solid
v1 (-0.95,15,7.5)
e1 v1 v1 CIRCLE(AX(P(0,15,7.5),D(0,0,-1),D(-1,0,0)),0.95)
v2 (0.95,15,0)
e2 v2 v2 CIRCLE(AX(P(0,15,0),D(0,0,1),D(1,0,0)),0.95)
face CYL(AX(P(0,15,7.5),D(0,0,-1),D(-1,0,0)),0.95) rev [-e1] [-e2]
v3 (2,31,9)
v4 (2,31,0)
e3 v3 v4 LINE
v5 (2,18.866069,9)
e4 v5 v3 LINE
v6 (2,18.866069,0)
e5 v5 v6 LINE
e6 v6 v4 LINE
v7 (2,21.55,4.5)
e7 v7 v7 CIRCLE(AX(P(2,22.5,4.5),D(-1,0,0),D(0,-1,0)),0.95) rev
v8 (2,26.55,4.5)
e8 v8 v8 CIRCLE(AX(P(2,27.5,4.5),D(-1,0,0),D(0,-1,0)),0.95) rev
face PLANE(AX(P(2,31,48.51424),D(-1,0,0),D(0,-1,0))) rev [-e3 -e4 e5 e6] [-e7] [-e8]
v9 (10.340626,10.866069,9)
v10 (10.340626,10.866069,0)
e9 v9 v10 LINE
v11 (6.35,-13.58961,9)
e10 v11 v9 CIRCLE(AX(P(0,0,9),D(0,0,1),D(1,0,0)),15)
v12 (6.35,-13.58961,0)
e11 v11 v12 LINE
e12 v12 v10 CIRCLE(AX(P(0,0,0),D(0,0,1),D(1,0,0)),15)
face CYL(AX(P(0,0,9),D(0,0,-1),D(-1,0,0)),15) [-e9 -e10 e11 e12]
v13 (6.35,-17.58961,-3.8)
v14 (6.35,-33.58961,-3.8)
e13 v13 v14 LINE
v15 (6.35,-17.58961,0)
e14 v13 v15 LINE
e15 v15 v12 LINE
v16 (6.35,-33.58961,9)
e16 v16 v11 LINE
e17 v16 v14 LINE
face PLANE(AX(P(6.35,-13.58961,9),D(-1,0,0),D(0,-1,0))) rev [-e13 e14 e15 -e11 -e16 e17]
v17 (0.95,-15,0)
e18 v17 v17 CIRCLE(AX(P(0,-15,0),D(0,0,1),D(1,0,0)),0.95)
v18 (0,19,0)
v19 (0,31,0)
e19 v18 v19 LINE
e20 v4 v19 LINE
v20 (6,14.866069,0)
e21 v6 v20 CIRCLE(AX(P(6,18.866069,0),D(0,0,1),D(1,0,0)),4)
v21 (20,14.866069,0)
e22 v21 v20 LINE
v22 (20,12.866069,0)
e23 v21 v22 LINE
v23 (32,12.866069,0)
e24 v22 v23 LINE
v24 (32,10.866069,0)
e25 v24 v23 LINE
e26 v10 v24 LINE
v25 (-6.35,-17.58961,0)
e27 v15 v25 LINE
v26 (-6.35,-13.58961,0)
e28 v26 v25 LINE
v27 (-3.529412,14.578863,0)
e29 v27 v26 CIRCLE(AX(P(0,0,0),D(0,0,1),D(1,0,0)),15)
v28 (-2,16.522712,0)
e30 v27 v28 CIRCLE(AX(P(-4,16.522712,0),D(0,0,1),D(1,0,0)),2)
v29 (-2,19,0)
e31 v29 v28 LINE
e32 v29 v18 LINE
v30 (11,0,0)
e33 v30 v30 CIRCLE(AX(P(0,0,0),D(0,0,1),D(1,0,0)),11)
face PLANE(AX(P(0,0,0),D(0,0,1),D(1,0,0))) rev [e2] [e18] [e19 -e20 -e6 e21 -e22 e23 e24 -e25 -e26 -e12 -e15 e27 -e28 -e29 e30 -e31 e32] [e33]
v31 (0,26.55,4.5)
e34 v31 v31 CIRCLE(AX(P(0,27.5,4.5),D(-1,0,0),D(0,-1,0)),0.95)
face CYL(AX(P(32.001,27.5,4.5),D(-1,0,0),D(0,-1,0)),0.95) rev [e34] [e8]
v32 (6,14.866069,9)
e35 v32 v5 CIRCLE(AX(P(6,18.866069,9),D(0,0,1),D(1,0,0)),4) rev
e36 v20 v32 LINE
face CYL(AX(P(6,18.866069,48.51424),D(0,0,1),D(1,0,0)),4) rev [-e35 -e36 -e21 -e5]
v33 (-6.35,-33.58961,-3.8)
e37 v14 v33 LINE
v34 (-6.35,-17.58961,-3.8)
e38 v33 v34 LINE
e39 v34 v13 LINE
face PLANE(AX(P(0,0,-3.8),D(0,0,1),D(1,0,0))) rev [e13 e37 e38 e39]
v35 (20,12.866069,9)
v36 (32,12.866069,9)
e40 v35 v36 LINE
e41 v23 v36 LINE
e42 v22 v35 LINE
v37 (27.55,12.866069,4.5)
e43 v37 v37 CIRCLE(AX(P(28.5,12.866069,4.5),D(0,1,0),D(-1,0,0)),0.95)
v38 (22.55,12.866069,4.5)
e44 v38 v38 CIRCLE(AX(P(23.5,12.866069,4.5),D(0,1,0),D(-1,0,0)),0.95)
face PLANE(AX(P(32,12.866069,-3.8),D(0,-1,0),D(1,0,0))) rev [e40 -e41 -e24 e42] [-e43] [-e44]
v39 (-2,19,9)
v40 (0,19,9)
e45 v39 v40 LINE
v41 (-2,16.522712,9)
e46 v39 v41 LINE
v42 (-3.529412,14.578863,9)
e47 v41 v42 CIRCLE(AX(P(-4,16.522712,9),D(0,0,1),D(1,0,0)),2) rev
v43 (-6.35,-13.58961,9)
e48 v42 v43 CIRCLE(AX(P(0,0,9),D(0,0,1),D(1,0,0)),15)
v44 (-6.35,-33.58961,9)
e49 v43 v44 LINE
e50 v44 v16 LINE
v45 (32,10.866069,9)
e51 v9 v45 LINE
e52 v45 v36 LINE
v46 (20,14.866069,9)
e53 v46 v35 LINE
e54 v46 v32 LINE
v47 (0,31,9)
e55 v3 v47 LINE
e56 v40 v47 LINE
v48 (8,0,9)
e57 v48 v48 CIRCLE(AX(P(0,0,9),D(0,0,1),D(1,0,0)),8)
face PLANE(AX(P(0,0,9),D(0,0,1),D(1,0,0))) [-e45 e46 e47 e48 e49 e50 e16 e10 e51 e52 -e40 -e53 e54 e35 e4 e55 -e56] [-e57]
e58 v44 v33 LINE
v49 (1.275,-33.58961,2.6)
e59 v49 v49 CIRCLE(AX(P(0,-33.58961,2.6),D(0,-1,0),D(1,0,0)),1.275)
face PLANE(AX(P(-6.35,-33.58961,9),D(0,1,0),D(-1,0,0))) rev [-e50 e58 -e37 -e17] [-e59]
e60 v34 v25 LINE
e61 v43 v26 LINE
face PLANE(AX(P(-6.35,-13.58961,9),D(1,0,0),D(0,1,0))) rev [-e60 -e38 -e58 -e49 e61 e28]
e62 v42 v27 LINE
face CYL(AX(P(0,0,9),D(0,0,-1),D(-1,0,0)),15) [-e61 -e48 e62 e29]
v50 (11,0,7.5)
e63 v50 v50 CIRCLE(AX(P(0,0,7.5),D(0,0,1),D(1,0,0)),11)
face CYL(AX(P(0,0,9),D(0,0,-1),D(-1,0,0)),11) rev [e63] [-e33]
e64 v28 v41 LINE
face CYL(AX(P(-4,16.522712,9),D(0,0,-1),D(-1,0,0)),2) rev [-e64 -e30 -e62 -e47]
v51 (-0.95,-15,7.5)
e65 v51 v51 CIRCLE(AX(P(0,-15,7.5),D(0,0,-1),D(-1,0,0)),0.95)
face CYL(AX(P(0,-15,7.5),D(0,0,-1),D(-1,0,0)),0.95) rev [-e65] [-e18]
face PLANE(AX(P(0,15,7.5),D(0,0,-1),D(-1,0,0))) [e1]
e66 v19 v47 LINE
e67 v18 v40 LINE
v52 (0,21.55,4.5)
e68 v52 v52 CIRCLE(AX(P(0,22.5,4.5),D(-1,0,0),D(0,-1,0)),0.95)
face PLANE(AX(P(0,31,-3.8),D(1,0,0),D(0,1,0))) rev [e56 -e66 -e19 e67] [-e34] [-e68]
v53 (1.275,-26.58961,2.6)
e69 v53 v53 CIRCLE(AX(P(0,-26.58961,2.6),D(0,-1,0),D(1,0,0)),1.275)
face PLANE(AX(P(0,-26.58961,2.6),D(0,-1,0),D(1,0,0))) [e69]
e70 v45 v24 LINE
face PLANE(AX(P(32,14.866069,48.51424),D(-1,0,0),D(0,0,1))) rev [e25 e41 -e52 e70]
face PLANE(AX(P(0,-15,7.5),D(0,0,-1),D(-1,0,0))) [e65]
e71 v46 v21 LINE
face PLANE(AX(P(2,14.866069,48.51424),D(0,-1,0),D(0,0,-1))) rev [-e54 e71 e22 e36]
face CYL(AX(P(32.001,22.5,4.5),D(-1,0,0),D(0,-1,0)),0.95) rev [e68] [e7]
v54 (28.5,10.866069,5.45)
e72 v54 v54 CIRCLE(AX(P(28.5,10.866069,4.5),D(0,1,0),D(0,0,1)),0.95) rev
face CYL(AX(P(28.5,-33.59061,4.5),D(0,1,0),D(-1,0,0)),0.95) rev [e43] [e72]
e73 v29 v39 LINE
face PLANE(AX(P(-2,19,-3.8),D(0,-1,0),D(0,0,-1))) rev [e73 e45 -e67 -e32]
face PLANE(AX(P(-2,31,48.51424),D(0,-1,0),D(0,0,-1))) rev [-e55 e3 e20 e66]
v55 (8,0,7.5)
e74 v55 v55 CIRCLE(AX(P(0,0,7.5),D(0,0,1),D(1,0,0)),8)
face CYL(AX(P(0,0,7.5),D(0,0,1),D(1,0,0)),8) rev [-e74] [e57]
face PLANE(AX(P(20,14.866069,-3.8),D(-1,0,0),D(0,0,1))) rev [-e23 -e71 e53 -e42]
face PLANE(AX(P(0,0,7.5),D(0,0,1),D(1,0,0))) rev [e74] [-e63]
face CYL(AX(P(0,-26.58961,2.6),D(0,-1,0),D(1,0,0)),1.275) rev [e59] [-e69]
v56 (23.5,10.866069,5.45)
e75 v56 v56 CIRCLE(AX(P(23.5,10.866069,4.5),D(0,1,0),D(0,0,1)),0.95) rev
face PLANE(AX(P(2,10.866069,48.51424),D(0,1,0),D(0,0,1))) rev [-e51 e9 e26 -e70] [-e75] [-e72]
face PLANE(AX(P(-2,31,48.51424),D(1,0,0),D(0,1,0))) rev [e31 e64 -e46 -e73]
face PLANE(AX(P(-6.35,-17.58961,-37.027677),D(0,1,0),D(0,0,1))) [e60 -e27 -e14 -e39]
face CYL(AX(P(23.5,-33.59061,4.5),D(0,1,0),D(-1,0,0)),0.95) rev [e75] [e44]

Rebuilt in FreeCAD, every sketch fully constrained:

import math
import FreeCAD as App
import Part
import Sketcher
from FreeCAD import Vector


def edges_at(feature, points):
    """Names of the edges that pass closest to the given points."""
    edges = feature.Shape.Edges
    near = lambda p: min(range(len(edges)), key=lambda i: edges[i].distToShape(Part.Vertex(*p))[0])
    return sorted({f"Edge{near(p) + 1}" for p in points})


def add_polygon(sketch, points):
    """Adds a closed chain of lines whose ends are joined by coincident constraints."""
    first, n = sketch.GeometryCount, len(points)
    for a, b in zip(points, points[1:] + points[:1]):
        sketch.addGeometry(Part.LineSegment(App.Vector(*a, 0), App.Vector(*b, 0)), False)
    for i in range(n):
        sketch.addConstraint(Sketcher.Constraint("Coincident", first + i, 2, first + (i + 1) % n, 1))

doc = App.newDocument("Part")
body = doc.addObject("PartDesign::Body", "Body")

sketch1 = body.newObject("Sketcher::SketchObject", "Sketch")
sketch1.AttachmentSupport = (doc.getObject("XY_Plane"), [""])
sketch1.MapMode = "FlatFace"
sketch1.addGeometry([
    Part.Circle(Vector(0, 0, 0), Vector(0, 0, 1), 15),
    Part.Circle(Vector(0, 0, 0), Vector(0, 0, 1), 11),
], False)
sketch1.addConstraint([
    Sketcher.Constraint("Coincident", 0, 3, -1, 1),
    Sketcher.Constraint("Coincident", 1, 3, -1, 1),
    Sketcher.Constraint("Diameter", 0, 30.0),
    Sketcher.Constraint("Diameter", 1, 22.0),
])
pad1 = body.newObject("PartDesign::Pad", "Pad")
pad1.Profile = sketch1
pad1.Length = 9

sketch2 = body.newObject("Sketcher::SketchObject", "Sketch001")
sketch2.AttachmentSupport = (doc.getObject("XY_Plane"), [""])
sketch2.MapMode = "FlatFace"
sketch2.addGeometry([
    Part.LineSegment(Vector(-6, -14, 0), Vector(-6, -34, 0)),
    Part.LineSegment(Vector(-6, -34, 0), Vector(6, -34, 0)),
    Part.LineSegment(Vector(6, -34, 0), Vector(6, -14, 0)),
    Part.ArcOfCircle(Part.Circle(Vector(0, 0, 0), Vector(0, 0, 1), 15), math.radians(-115), math.radians(-65)),
], False)
sketch2.addConstraint([
    Sketcher.Constraint("Coincident", 0, 2, 1, 1),
    Sketcher.Constraint("Coincident", 1, 2, 2, 1),
    Sketcher.Constraint("Coincident", 2, 2, 3, 2),
    Sketcher.Constraint("Coincident", 3, 1, 0, 1),
    Sketcher.Constraint("Vertical", 0),
    Sketcher.Constraint("Horizontal", 1),
    Sketcher.Constraint("Vertical", 2),
    Sketcher.Constraint("Coincident", 3, 3, -1, 1),
    Sketcher.Constraint("Horizontal", 2, 2, 3, 1),
    Sketcher.Constraint("Radius", 3, 15.0),
    Sketcher.Constraint("DistanceY", 0, 2, 0, 1, 20.0),
    Sketcher.Constraint("DistanceX", 1, 1, 1, 2, 12.7),
])
pad2 = body.newObject("PartDesign::Pad", "Pad001")
pad2.Profile = sketch2
pad2.Length = 9

sketch3 = body.newObject("Sketcher::SketchObject", "Sketch002")
sketch3.AttachmentSupport = (doc.getObject("XY_Plane"), [""])
sketch3.MapMode = "FlatFace"
add_polygon(sketch3, [(-6, -18), (-6, -34), (6, -34), (6, -18)])
sketch3.addConstraint([
    Sketcher.Constraint("Vertical", 0),
    Sketcher.Constraint("Horizontal", 1),
    Sketcher.Constraint("Vertical", 2),
    Sketcher.Constraint("Horizontal", 3),
    Sketcher.Constraint("DistanceY", 0, 2, 0, 1, 16.0),
    Sketcher.Constraint("DistanceX", 1, 1, 1, 2, 12.7),
    Sketcher.Constraint("DistanceX", 0, 2, -1, 1, 6.35),
    Sketcher.Constraint("DistanceY", 0, 2, -1, 1, 33.58961),
])
pad3 = body.newObject("PartDesign::Pad", "Pad002")
pad3.Profile = sketch3
pad3.Length = 3.8
pad3.Reversed = True

sketch4 = body.newObject("Sketcher::SketchObject", "Sketch003")
sketch4.AttachmentSupport = (doc.getObject("XZ_Plane"), [""])
sketch4.MapMode = "FlatFace"
sketch4.AttachmentOffset = App.Placement(Vector(0, 0, 33.58961), App.Rotation())
sketch4.addGeometry(Part.Circle(Vector(0, 2.6, 0), Vector(0, 0, 1), 1.3), False)
sketch4.addConstraint([
    Sketcher.Constraint("PointOnObject", 0, 3, -2),
    Sketcher.Constraint("Diameter", 0, 2.55),
    Sketcher.Constraint("DistanceY", -1, 1, 0, 3, 2.6),
])
pocket1 = body.newObject("PartDesign::Pocket", "Pocket")
pocket1.Profile = sketch4
pocket1.Length = 7

sketch5 = body.newObject("Sketcher::SketchObject", "Sketch004")
sketch5.AttachmentSupport = (doc.getObject("XY_Plane"), [""])
sketch5.MapMode = "FlatFace"
sketch5.AttachmentOffset = App.Placement(Vector(0, 0, 9), App.Rotation())
sketch5.addGeometry([
    Part.Circle(Vector(0, 0, 0), Vector(0, 0, 1), 11),
    Part.Circle(Vector(0, 0, 0), Vector(0, 0, 1), 8),
], False)
sketch5.addConstraint([
    Sketcher.Constraint("Coincident", 0, 3, -1, 1),
    Sketcher.Constraint("Coincident", 1, 3, -1, 1),
    Sketcher.Constraint("Diameter", 0, 22.0),
    Sketcher.Constraint("Diameter", 1, 16.0),
])
pad4 = body.newObject("PartDesign::Pad", "Pad003")
pad4.Profile = sketch5
pad4.Length = 1.5
pad4.Reversed = True

sketch6 = body.newObject("Sketcher::SketchObject", "Sketch005")
sketch6.AttachmentSupport = (doc.getObject("XY_Plane"), [""])
sketch6.MapMode = "FlatFace"
add_polygon(sketch6, [(-2, 14.9), (2, 10.9), (32, 10.9), (32, 14.9), (2, 14.9), (2, 31), (-2, 31)])
sketch6.addConstraint([
    Sketcher.Constraint("Horizontal", 1),
    Sketcher.Constraint("Vertical", 2),
    Sketcher.Constraint("Horizontal", 3),
    Sketcher.Constraint("Vertical", 4),
    Sketcher.Constraint("Horizontal", 5),
    Sketcher.Constraint("Vertical", 6),
    Sketcher.Constraint("Symmetric", 3, 2, 6, 2, -2),
    Sketcher.Constraint("Vertical", 0, 2, 3, 2),
    Sketcher.Constraint("Equal", 5, 2),
    Sketcher.Constraint("DistanceX", 1, 1, 1, 2, 30.0),
    Sketcher.Constraint("DistanceX", 5, 2, 5, 1, 4.0),
    Sketcher.Constraint("DistanceY", -1, 1, 4, 2, 31.0),
    Sketcher.Constraint("DistanceY", 4, 1, 4, 2, 16.133931),
])
pad5 = body.newObject("PartDesign::Pad", "Pad004")
pad5.Profile = sketch6
pad5.Length = 9

sketch7 = body.newObject("Sketcher::SketchObject", "Sketch006")
sketch7.AttachmentSupport = (doc.getObject("XY_Plane"), [""])
sketch7.MapMode = "FlatFace"
sketch7.AttachmentOffset = App.Placement(Vector(0, 0, 9), App.Rotation())
add_polygon(sketch7, [(20, 14.9), (20, 12.9), (32, 12.9), (32, 14.9)])
add_polygon(sketch7, [(-2, 31), (-2, 19), (0, 19), (0, 31)])
sketch7.addConstraint([
    Sketcher.Constraint("Vertical", 0),
    Sketcher.Constraint("Horizontal", 1),
    Sketcher.Constraint("Vertical", 2),
    Sketcher.Constraint("Horizontal", 3),
    Sketcher.Constraint("Vertical", 4),
    Sketcher.Constraint("Horizontal", 5),
    Sketcher.Constraint("Vertical", 6),
    Sketcher.Constraint("Horizontal", 7),
    Sketcher.Constraint("PointOnObject", 5, 2, -2),
    Sketcher.Constraint("Equal", 7, 0),
    Sketcher.Constraint("Equal", 3, 4),
    Sketcher.Constraint("DistanceX", 1, 1, 1, 2, 12.0),
    Sketcher.Constraint("DistanceX", 5, 1, 5, 2, 2.0),
    Sketcher.Constraint("DistanceX", -1, 1, 0, 2, 20.0),
    Sketcher.Constraint("DistanceY", -1, 1, 4, 2, 19.0),
    Sketcher.Constraint("DistanceY", -1, 1, 0, 2, 12.866069),
])
pocket2 = body.newObject("PartDesign::Pocket", "Pocket001")
pocket2.Profile = sketch7
pocket2.Type = "ThroughAll"

sketch8 = body.newObject("Sketcher::SketchObject", "Sketch007")
sketch8.AttachmentSupport = (doc.getObject("YZ_Plane"), [""])
sketch8.MapMode = "FlatFace"
sketch8.addGeometry(Part.Circle(Vector(27.5, 4.5, 0), Vector(0, 0, 1), 0.9), False)
sketch8.addConstraint([
    Sketcher.Constraint("Diameter", 0, 1.9),
    Sketcher.Constraint("DistanceX", -1, 1, 0, 3, 27.5),
    Sketcher.Constraint("DistanceY", -1, 1, 0, 3, 4.5),
])
pocket3 = body.newObject("PartDesign::Pocket", "Pocket002")
pocket3.Profile = sketch8
pocket3.Type = "UpToFirst"
pocket3.Reversed = True

sketch9 = body.newObject("Sketcher::SketchObject", "Sketch008")
sketch9.AttachmentSupport = (doc.getObject("YZ_Plane"), [""])
sketch9.MapMode = "FlatFace"
sketch9.addGeometry(Part.Circle(Vector(22.5, 4.5, 0), Vector(0, 0, 1), 0.9), False)
sketch9.addConstraint([
    Sketcher.Constraint("Diameter", 0, 1.9),
    Sketcher.Constraint("DistanceX", -1, 1, 0, 3, 22.5),
    Sketcher.Constraint("DistanceY", -1, 1, 0, 3, 4.5),
])
pocket4 = body.newObject("PartDesign::Pocket", "Pocket003")
pocket4.Profile = sketch9
pocket4.Type = "UpToFirst"
pocket4.Reversed = True

sketch10 = body.newObject("Sketcher::SketchObject", "Sketch009")
sketch10.AttachmentSupport = (doc.getObject("XZ_Plane"), [""])
sketch10.MapMode = "FlatFace"
sketch10.AttachmentOffset = App.Placement(Vector(0, 0, -12.866069), App.Rotation())
sketch10.addGeometry(Part.Circle(Vector(23.5, 4.5, 0), Vector(0, 0, 1), 0.9), False)
sketch10.addConstraint([
    Sketcher.Constraint("Diameter", 0, 1.9),
    Sketcher.Constraint("DistanceX", -1, 1, 0, 3, 23.5),
    Sketcher.Constraint("DistanceY", -1, 1, 0, 3, 4.5),
])
pocket5 = body.newObject("PartDesign::Pocket", "Pocket004")
pocket5.Profile = sketch10
pocket5.Type = "UpToFirst"
pocket5.Reversed = True

sketch11 = body.newObject("Sketcher::SketchObject", "Sketch010")
sketch11.AttachmentSupport = (doc.getObject("XZ_Plane"), [""])
sketch11.MapMode = "FlatFace"
sketch11.AttachmentOffset = App.Placement(Vector(0, 0, -12.866069), App.Rotation())
sketch11.addGeometry(Part.Circle(Vector(28.5, 4.5, 0), Vector(0, 0, 1), 0.9), False)
sketch11.addConstraint([
    Sketcher.Constraint("Diameter", 0, 1.9),
    Sketcher.Constraint("DistanceX", -1, 1, 0, 3, 28.5),
    Sketcher.Constraint("DistanceY", -1, 1, 0, 3, 4.5),
])
pocket6 = body.newObject("PartDesign::Pocket", "Pocket005")
pocket6.Profile = sketch11
pocket6.Type = "UpToFirst"
pocket6.Reversed = True
doc.recompute()

fillet = body.newObject("PartDesign::Fillet", "Fillet")
fillet.Base = (pocket6, edges_at(pocket6, [(2, 14.866, 4.5)]))
fillet.Radius = 4
doc.recompute()

fillet2 = body.newObject("PartDesign::Fillet", "Fillet001")
fillet2.Base = (fillet, edges_at(fillet, [(-2, 14.866, 4.5)]))
fillet2.Radius = 2
body2 = doc.addObject("PartDesign::Body", "Body001")

sketch12 = body2.newObject("Sketcher::SketchObject", "Sketch011")
sketch12.AttachmentSupport = (doc.getObject("XY_Plane001"), [""])
sketch12.MapMode = "FlatFace"
sketch12.addGeometry([
    Part.LineSegment(Vector(6, 14.87, 0), Vector(10.34, 10.87, 0)),
    Part.ArcOfCircle(Part.Circle(Vector(0, 0, 0), Vector(0, 0, 1), 15), math.radians(-65), math.radians(46)),
    Part.LineSegment(Vector(6.35, -13.59, 0), Vector(6.35, -17.59, 0)),
    Part.LineSegment(Vector(6.35, -17.59, 0), Vector(-6.35, -17.59, 0)),
    Part.LineSegment(Vector(-6.35, -17.59, 0), Vector(-6.35, -13.59, 0)),
    Part.ArcOfCircle(Part.Circle(Vector(0, 0, 0), Vector(0, 0, 1), 15), math.radians(104), math.radians(245)),
    Part.ArcOfCircle(Part.Circle(Vector(-4, 16.52, 0), Vector(0, 0, 1), 2), math.radians(-76), math.radians(0)),
    Part.LineSegment(Vector(-2, 16.52, 0), Vector(-2, 19, 0)),
    Part.LineSegment(Vector(-2, 19, 0), Vector(2, 19, 0)),
    Part.LineSegment(Vector(2, 19, 0), Vector(2, 18.87, 0)),
    Part.ArcOfCircle(Part.Circle(Vector(6, 18.87, 0), Vector(0, 0, 1), 4), math.radians(-180), math.radians(-90)),
    Part.Circle(Vector(0, 0, 0), Vector(0, 0, 1), 11),
], False)
sketch12.addConstraint([
    Sketcher.Constraint("Coincident", 0, 2, 1, 2),
    Sketcher.Constraint("Coincident", 1, 1, 2, 1),
    Sketcher.Constraint("Coincident", 2, 2, 3, 1),
    Sketcher.Constraint("Coincident", 3, 2, 4, 1),
    Sketcher.Constraint("Coincident", 4, 2, 5, 2),
    Sketcher.Constraint("Tangent", 5, 1, 6, 1),
    Sketcher.Constraint("Tangent", 6, 2, 7, 1),
    Sketcher.Constraint("Coincident", 7, 2, 8, 1),
    Sketcher.Constraint("Coincident", 8, 2, 9, 1),
    Sketcher.Constraint("Tangent", 9, 2, 10, 1),
    Sketcher.Constraint("Coincident", 10, 2, 0, 1),
    Sketcher.Constraint("Vertical", 2),
    Sketcher.Constraint("Horizontal", 3),
    Sketcher.Constraint("Vertical", 4),
    Sketcher.Constraint("Vertical", 7),
    Sketcher.Constraint("Horizontal", 8),
    Sketcher.Constraint("Vertical", 9),
    Sketcher.Constraint("Coincident", 1, 3, -1, 1),
    Sketcher.Constraint("Coincident", 5, 3, -1, 1),
    Sketcher.Constraint("Coincident", 11, 3, -1, 1),
    Sketcher.Constraint("Equal", 1, 5),
    Sketcher.Constraint("Horizontal", 1, 1, 4, 2),
    Sketcher.Constraint("Equal", 8, 2),
    Sketcher.Constraint("Diameter", 11, 22.0),
    Sketcher.Constraint("Radius", 1, 15.0),
    Sketcher.Constraint("Radius", 6, 2.0),
    Sketcher.Constraint("Radius", 10, 4.0),
    Sketcher.Constraint("DistanceX", 8, 1, 8, 2, 4.0),
    Sketcher.Constraint("DistanceX", 3, 2, 3, 1, 12.7),
    Sketcher.Constraint("DistanceX", 6, 3, -1, 1, 4.0),
    Sketcher.Constraint("DistanceY", -1, 1, 7, 2, 19.0),
    Sketcher.Constraint("DistanceX", -1, 1, 10, 2, 6.0),
    Sketcher.Constraint("DistanceY", 0, 2, 10, 3, 8.0),
    Sketcher.Constraint("DistanceY", 9, 2, 9, 1, 0.133931),
])
pad6 = body2.newObject("PartDesign::Pad", "Pad005")
pad6.Profile = sketch12
pad6.Length = 1.5
pad6.Reversed = True
body3 = doc.addObject("PartDesign::Body", "Body002")
body3.AllowCompound = True

sketch13 = body3.newObject("Sketcher::SketchObject", "Sketch012")
sketch13.AttachmentSupport = (doc.getObject("XY_Plane002"), [""])
sketch13.MapMode = "FlatFace"
sketch13.AttachmentOffset = App.Placement(Vector(0, 0, -1.5), App.Rotation())
sketch13.addGeometry([
    Part.Circle(Vector(0, 15, 0), Vector(0, 0, 1), 0.9),
    Part.Circle(Vector(0, -15, 0), Vector(0, 0, 1), 0.9),
], False)
sketch13.addConstraint([
    Sketcher.Constraint("Equal", 0, 1),
    Sketcher.Constraint("Symmetric", 0, 3, 1, 3, -1, 1),
    Sketcher.Constraint("PointOnObject", 0, 3, -2),
    Sketcher.Constraint("Diameter", 0, 1.9),
    Sketcher.Constraint("DistanceY", -1, 1, 0, 3, 15.0),
])
pad7 = body3.newObject("PartDesign::Pad", "Pad006")
pad7.Profile = sketch13
pad7.Length = 9
doc.recompute()

body4 = doc.addObject("PartDesign::Body", "Body003")
body4.BaseFeature = body3
boolean = body.newObject("PartDesign::Boolean", "Boolean")
boolean.Type = "Cut"
boolean.addObjects([body4])
doc.recompute()

boolean2 = body2.newObject("PartDesign::Boolean", "Boolean001")
boolean2.Type = "Cut"
boolean2.addObjects([body3])
doc.recompute()

fillet3 = body2.newObject("PartDesign::Fillet", "Fillet002")
fillet3.Base = (boolean2, edges_at(boolean2, [(0, 19, -1.5)]))
fillet3.Radius = 1
body2.Visibility = False

doc.recompute()
